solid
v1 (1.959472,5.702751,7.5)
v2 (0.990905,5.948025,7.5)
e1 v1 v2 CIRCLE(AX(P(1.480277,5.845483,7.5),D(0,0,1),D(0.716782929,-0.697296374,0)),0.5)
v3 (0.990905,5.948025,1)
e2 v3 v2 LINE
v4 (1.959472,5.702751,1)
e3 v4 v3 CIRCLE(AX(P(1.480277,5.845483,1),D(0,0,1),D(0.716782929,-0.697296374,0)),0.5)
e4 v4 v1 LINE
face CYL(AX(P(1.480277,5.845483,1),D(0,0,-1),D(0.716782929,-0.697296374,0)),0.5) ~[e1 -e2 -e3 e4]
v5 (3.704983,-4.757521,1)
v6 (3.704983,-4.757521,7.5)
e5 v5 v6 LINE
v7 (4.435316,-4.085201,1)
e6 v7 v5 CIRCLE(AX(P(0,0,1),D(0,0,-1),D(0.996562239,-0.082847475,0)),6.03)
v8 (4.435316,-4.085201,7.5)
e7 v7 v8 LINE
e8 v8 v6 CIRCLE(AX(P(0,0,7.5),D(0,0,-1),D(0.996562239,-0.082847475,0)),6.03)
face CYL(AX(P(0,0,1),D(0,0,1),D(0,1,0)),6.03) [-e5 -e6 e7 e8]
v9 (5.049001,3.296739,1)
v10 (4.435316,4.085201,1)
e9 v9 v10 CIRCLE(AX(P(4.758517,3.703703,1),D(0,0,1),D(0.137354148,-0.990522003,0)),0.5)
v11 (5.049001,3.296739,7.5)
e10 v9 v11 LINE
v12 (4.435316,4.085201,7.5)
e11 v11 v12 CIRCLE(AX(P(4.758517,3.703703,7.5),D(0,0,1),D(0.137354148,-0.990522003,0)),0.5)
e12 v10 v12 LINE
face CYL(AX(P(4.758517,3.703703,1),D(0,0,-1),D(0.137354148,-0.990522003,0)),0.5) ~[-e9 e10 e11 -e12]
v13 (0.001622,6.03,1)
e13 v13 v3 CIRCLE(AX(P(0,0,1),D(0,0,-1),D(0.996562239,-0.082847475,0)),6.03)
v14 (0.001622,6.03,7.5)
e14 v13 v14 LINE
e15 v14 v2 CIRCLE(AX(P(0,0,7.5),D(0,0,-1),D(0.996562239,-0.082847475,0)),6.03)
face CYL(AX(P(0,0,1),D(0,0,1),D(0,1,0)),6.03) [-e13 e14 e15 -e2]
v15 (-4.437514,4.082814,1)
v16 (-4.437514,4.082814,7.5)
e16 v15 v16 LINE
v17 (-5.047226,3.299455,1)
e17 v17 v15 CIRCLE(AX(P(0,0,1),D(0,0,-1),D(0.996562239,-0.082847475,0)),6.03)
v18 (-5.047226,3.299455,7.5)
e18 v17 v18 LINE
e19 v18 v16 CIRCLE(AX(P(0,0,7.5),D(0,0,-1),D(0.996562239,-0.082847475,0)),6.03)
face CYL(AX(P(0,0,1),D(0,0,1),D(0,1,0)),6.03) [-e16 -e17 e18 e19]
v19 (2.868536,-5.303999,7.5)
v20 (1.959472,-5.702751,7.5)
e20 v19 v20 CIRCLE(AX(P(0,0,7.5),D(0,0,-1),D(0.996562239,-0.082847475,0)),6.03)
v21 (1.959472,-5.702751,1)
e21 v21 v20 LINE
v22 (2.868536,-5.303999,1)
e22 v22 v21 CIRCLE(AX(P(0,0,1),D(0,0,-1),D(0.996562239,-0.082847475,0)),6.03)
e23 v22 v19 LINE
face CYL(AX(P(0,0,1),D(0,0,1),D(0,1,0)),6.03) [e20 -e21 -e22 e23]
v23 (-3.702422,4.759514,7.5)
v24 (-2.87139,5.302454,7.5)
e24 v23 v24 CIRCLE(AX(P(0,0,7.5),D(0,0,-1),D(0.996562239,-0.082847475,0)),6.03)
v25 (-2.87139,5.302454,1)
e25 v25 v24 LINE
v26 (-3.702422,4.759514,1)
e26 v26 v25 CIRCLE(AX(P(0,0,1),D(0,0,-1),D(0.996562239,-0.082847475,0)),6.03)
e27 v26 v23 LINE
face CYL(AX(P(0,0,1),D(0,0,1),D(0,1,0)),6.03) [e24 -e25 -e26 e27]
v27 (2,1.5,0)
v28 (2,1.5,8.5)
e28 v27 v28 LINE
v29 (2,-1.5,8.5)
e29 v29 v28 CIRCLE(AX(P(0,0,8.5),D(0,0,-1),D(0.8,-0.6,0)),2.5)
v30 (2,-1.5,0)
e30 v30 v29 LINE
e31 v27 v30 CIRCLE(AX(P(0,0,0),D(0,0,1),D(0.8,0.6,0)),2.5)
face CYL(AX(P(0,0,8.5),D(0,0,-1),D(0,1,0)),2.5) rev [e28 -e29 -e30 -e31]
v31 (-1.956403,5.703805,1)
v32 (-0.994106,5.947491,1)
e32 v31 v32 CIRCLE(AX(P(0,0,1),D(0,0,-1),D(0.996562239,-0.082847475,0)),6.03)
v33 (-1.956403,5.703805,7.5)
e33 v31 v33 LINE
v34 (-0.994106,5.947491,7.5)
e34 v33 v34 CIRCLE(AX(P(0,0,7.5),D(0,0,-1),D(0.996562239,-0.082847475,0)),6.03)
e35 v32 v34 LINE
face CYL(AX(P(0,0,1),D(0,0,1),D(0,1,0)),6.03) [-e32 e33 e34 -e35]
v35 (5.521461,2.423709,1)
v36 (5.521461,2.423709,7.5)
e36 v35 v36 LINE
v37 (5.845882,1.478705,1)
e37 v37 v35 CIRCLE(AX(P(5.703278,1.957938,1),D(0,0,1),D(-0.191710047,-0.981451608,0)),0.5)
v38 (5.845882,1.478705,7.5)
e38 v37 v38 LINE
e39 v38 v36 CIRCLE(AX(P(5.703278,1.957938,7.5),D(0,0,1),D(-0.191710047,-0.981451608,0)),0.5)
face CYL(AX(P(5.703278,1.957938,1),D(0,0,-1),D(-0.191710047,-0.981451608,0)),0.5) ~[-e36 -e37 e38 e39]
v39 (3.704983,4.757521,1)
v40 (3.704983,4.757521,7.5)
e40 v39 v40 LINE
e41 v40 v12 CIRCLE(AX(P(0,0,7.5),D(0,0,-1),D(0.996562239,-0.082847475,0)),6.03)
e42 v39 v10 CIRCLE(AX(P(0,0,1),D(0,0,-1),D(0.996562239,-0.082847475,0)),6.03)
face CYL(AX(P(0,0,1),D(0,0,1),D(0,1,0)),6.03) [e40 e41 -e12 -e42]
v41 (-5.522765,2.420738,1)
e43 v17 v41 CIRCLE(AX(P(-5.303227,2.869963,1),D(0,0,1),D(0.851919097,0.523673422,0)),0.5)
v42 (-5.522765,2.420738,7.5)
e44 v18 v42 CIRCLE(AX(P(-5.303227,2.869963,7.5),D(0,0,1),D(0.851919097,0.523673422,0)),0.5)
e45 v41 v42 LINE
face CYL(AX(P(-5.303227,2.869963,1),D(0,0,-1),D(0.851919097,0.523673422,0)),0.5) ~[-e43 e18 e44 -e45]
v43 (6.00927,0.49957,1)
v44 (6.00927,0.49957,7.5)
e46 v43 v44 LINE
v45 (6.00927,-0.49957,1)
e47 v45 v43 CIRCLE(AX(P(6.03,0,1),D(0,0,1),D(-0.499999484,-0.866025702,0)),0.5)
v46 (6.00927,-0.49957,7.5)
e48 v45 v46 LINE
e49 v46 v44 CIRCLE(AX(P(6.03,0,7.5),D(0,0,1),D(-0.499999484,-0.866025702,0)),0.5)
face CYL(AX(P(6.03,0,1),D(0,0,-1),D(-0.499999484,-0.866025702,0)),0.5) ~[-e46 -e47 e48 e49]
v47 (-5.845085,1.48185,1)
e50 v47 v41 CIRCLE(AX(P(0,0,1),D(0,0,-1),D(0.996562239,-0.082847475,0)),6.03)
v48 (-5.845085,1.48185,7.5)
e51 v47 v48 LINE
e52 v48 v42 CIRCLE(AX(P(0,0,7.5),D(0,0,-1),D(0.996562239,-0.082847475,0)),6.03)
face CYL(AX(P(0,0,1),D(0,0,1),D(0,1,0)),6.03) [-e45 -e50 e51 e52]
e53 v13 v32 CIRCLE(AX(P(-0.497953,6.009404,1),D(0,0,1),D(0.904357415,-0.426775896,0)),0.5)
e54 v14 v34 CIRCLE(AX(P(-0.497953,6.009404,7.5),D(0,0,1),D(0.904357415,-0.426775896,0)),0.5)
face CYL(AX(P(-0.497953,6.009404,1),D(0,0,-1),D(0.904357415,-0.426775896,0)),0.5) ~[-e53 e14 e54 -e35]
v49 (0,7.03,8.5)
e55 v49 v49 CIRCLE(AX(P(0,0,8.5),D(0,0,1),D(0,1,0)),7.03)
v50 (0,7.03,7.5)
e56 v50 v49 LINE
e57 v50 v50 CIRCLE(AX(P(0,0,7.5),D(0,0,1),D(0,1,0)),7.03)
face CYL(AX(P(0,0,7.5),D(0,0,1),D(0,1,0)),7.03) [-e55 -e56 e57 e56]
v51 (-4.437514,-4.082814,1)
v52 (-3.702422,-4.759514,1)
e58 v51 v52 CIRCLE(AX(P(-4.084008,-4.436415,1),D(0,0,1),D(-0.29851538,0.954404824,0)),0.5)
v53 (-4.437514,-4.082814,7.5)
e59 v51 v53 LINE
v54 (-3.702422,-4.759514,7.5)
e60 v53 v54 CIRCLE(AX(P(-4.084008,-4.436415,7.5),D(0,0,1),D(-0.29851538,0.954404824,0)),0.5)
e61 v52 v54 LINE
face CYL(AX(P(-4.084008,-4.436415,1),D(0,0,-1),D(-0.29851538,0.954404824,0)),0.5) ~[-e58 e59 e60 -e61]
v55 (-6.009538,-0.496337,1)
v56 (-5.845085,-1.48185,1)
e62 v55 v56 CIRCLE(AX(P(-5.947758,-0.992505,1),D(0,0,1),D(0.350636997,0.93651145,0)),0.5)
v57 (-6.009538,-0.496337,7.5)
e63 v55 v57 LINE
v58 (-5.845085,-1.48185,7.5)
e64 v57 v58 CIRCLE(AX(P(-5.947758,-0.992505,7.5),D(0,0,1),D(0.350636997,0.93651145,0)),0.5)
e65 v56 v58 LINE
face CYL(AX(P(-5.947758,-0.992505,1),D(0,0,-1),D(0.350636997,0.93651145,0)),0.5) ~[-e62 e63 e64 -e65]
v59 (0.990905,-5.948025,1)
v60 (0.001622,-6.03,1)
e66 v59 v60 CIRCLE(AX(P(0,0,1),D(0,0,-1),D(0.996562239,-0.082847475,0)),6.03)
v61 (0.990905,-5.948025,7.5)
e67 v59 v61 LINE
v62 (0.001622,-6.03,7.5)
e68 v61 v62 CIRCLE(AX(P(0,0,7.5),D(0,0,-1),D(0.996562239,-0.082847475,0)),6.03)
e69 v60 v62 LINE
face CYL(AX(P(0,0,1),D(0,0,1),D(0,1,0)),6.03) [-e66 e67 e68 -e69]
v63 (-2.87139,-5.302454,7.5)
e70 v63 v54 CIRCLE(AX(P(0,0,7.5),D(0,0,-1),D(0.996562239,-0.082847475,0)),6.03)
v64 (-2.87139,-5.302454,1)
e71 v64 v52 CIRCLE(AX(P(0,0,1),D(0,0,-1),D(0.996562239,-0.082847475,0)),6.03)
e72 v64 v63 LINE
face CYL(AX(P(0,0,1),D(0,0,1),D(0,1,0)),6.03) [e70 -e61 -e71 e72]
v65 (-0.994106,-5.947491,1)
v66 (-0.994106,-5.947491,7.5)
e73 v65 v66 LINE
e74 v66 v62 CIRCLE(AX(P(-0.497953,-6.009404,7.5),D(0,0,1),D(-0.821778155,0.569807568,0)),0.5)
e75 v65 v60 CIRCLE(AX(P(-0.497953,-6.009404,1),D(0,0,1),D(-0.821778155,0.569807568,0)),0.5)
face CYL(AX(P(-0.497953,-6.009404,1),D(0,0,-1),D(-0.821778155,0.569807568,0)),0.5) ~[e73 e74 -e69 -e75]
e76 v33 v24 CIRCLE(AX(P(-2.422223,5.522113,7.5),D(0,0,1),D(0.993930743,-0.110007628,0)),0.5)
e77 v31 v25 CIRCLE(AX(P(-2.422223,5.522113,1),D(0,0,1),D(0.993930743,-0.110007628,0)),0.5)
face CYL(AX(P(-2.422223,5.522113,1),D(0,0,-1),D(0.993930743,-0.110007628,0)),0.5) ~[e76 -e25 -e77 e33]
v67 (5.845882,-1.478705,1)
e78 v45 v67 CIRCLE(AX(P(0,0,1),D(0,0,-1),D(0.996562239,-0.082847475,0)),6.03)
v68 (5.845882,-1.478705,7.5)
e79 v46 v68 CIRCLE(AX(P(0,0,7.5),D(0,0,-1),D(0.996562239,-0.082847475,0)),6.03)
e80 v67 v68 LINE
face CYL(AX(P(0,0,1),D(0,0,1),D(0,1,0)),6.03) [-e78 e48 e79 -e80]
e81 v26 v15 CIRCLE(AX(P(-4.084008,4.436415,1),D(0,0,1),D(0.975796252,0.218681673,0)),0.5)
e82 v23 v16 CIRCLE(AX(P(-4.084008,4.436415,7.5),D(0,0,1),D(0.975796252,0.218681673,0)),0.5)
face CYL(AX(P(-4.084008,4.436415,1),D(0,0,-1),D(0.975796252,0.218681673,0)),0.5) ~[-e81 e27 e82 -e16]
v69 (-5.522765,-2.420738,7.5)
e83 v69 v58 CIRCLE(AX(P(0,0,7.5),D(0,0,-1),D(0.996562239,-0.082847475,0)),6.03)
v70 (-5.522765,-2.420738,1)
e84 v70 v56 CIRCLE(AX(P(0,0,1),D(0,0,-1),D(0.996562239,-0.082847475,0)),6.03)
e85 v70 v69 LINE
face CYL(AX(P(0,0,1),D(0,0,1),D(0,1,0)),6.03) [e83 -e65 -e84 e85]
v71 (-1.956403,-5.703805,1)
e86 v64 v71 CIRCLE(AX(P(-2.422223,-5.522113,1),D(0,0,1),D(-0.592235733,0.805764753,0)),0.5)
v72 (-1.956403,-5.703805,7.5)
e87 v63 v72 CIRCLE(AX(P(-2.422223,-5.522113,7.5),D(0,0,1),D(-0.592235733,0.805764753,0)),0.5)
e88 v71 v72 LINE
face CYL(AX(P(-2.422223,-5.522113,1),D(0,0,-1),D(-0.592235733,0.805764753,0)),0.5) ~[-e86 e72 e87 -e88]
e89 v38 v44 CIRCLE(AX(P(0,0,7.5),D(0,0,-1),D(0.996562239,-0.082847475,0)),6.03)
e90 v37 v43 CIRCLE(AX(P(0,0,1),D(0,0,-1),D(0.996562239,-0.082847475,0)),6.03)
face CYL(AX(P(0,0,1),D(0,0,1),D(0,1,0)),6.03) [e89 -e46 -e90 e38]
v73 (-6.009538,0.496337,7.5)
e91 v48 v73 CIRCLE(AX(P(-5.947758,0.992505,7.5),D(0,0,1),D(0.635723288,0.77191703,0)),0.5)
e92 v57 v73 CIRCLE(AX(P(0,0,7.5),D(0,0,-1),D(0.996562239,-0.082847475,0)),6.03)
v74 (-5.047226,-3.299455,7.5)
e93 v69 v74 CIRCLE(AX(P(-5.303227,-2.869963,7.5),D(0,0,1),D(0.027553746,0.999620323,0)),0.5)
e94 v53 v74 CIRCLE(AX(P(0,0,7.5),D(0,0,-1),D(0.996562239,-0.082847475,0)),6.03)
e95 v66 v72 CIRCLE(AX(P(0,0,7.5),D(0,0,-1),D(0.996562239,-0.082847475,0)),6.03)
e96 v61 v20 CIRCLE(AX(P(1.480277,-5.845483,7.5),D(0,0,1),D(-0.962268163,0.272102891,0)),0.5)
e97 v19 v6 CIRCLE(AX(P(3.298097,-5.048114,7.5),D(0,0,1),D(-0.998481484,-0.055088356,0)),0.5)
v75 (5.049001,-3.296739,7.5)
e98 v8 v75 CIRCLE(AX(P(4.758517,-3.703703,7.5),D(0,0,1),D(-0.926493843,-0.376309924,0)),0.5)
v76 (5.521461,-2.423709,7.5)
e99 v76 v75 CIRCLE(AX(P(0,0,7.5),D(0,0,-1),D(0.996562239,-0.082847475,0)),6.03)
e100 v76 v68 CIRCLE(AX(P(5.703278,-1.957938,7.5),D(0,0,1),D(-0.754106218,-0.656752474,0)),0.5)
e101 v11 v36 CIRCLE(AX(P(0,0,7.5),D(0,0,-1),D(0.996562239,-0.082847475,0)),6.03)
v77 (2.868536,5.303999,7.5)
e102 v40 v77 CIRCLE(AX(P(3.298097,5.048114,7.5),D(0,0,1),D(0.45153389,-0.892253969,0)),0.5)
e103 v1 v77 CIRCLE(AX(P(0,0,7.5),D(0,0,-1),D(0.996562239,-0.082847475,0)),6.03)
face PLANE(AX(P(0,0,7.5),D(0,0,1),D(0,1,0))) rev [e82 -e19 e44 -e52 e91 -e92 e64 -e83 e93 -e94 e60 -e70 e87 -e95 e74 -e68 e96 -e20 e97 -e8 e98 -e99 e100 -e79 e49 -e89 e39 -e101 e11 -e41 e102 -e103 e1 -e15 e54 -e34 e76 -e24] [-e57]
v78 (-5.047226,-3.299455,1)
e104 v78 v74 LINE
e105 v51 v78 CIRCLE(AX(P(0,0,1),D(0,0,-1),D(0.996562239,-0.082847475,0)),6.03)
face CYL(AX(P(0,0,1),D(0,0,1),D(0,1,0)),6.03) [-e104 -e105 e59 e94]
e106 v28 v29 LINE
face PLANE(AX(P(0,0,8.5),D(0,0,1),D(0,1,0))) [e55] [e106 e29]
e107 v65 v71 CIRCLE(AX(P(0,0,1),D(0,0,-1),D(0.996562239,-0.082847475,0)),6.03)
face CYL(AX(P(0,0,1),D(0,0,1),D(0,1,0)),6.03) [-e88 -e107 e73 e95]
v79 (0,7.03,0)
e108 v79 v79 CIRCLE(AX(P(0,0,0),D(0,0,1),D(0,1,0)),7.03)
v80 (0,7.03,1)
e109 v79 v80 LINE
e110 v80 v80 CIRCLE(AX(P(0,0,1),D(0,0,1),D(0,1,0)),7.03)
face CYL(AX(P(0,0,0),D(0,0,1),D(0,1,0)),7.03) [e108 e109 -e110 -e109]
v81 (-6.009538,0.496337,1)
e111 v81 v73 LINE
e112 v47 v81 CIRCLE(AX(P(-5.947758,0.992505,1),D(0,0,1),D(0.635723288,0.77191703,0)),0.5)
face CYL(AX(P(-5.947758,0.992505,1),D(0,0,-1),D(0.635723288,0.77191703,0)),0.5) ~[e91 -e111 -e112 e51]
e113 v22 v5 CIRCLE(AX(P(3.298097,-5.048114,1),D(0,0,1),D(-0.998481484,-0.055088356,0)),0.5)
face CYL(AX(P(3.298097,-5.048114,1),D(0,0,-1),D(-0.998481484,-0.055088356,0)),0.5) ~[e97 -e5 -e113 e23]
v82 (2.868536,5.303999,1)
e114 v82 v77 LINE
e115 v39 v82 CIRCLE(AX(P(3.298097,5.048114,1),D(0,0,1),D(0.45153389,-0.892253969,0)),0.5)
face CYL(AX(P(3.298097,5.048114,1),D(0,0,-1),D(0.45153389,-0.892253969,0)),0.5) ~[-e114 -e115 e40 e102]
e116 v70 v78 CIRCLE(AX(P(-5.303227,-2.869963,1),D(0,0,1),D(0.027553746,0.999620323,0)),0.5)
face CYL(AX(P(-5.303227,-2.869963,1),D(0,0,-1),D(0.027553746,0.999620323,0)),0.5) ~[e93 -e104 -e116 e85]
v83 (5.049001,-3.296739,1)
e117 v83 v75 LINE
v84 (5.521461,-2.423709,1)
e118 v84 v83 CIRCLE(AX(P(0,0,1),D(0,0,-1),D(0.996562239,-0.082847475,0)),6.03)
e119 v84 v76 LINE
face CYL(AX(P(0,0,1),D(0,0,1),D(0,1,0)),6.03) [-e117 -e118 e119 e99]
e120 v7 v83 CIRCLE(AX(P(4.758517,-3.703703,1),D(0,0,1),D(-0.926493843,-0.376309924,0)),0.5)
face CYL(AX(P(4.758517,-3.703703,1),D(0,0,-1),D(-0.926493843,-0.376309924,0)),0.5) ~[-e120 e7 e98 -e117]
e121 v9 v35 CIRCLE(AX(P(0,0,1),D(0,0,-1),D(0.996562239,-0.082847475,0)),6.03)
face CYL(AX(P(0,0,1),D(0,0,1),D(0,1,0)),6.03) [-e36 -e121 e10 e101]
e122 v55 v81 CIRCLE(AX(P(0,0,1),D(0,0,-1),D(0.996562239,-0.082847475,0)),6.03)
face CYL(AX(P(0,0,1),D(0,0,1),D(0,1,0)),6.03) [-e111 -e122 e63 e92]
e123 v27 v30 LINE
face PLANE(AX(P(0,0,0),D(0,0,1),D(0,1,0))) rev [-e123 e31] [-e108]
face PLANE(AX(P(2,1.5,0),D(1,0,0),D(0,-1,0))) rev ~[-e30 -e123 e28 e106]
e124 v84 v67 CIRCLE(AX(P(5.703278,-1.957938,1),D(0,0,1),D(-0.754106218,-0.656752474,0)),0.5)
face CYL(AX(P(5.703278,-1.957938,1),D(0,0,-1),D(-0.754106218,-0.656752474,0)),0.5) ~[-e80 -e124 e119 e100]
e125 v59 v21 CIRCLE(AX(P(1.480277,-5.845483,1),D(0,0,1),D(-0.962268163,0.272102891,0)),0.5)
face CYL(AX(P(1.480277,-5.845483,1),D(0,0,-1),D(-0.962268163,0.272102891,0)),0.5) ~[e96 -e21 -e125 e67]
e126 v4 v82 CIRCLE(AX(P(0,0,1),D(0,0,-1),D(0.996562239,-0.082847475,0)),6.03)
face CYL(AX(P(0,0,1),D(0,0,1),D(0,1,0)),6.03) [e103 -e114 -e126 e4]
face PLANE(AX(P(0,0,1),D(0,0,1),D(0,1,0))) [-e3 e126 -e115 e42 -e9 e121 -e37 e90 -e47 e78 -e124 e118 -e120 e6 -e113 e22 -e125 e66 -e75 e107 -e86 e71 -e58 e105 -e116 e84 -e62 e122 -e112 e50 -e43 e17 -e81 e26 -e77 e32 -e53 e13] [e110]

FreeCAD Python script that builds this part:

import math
import FreeCAD as App
import Part
import Sketcher


def add_polygon(sketch, points):
    """Adds a closed chain of lines whose ends are joined by coincident constraints."""
    first, n = sketch.GeometryCount, len(points)
    for a, b in zip(points, points[1:] + points[:1]):
        sketch.addGeometry(Part.LineSegment(App.Vector(*a, 0), App.Vector(*b, 0)), False)
    for i in range(n):
        sketch.addConstraint(Sketcher.Constraint("Coincident", first + i, 2, first + (i + 1) % n, 1))

doc = App.newDocument("Part")
params = doc.addObject("Spreadsheet::Sheet", "Params")
for row, (alias, value) in enumerate([
    ("sketch1_width", "1 mm"),
    ("sketch1_height", "6.5 mm"),
    ("sketch1_width2", "4.53 mm"),
    ("revolution_angle", "360 deg"),
    ("sketch2_radius", "0.5 mm"),
    ("pad1_length", "6.5 mm"),
    ("sketch3_radius", "2.5 mm"),
    ("sketch3_height", "3 mm"),
    ("pad2_length", "8.5 mm"),
], start=1):
    params.set(f"A{row}", alias)
    params.set(f"B{row}", "=" + value)
    params.setAlias(f"B{row}", alias)

body = doc.addObject("PartDesign::Body", "Body")

sketch1 = body.newObject("Sketcher::SketchObject", "Sketch")
sketch1.AttachmentSupport = (doc.getObject("YZ_Plane"), [""])
sketch1.MapMode = "FlatFace"
add_polygon(sketch1, [(2.5, 0), (7.03, 0), (7.03, 1), (6.03, 1), (6.03, 7.5), (7.03, 7.5), (7.03, 8.5), (2.5, 8.5)])
sketch1.addConstraint(Sketcher.Constraint("Horizontal", 0))
sketch1.addConstraint(Sketcher.Constraint("Vertical", 1))
sketch1.addConstraint(Sketcher.Constraint("Horizontal", 2))
sketch1.addConstraint(Sketcher.Constraint("Vertical", 3))
sketch1.addConstraint(Sketcher.Constraint("Horizontal", 4))
sketch1.addConstraint(Sketcher.Constraint("Vertical", 5))
sketch1.addConstraint(Sketcher.Constraint("Horizontal", 6))
sketch1.addConstraint(Sketcher.Constraint("Vertical", 7))
sketch1.addConstraint(Sketcher.Constraint("PointOnObject", 0, 2, -1))
sketch1.addConstraint(Sketcher.Constraint("Vertical", 1, 2, 4, 2))
sketch1.addConstraint(Sketcher.Constraint("Equal", 4, 1))
sketch1.addConstraint(Sketcher.Constraint("Equal", 1, 5))
sketch1.addConstraint(Sketcher.Constraint("DistanceX", 2, 2, 2, 1, 1.0))
sketch1.addConstraint(Sketcher.Constraint("DistanceY", 3, 1, 3, 2, 6.5))
sketch1.addConstraint(Sketcher.Constraint("DistanceX", 0, 1, 0, 2, 4.53))
sketch1.addConstraint(Sketcher.Constraint("DistanceX", -1, 1, 6, 2, 2.5))
sketch1.setExpression("Constraints[20]", "Params.sketch1_width")
sketch1.setExpression("Constraints[21]", "Params.sketch1_height")
sketch1.setExpression("Constraints[22]", "Params.sketch1_width2")
revolution = body.newObject("PartDesign::Revolution", "Revolution")
revolution.Profile = sketch1
revolution.ReferenceAxis = (sketch1, ["V_Axis"])
revolution.setExpression("Angle", "Params.revolution_angle")

sketch2 = body.newObject("Sketcher::SketchObject", "Sketch001")
sketch2.AttachmentSupport = (doc.getObject("XY_Plane"), [""])
sketch2.MapMode = "FlatFace"
sketch2.AttachmentOffset = App.Placement(App.Vector(0, 0, 1), App.Rotation())
sketch2.addGeometry(Part.ArcOfCircle(Part.Circle(App.Vector(6.03, 0, 0), App.Vector(0, 0, 1), 0.5), math.radians(-119.999966), math.radians(119.999966)), False)
sketch2.addGeometry(Part.LineSegment(App.Vector(5.78, 0.433013, 0), App.Vector(5.78, -0.433013, 0)), False)
sketch2.addConstraint(Sketcher.Constraint("Coincident", 0, 1, 1, 2))
sketch2.addConstraint(Sketcher.Constraint("Coincident", 1, 1, 0, 2))
sketch2.addConstraint(Sketcher.Constraint("Vertical", 1))
sketch2.addConstraint(Sketcher.Constraint("PointOnObject", 0, 3, -1))
sketch2.addConstraint(Sketcher.Constraint("Radius", 0, 0.5))
sketch2.addConstraint(Sketcher.Constraint("DistanceX", -1, 1, 0, 3, 6.03))
sketch2.addConstraint(Sketcher.Constraint("DistanceX", -1, 1, 0, 1, 5.78))
sketch2.setExpression("Constraints[4]", "Params.sketch2_radius")
pad1 = body.newObject("PartDesign::Pad", "Pad")
pad1.Profile = sketch2
pad1.setExpression("Length", "Params.pad1_length")
doc.recompute()

polarpattern = body.newObject("PartDesign::PolarPattern", "PolarPattern")
polarpattern.Originals = [pad1]
polarpattern.Axis = (doc.getObject("Z_Axis"), [""])
polarpattern.Angle = 360
polarpattern.Occurrences = 19
body.Tip = polarpattern

sketch3 = body.newObject("Sketcher::SketchObject", "Sketch002")
sketch3.AttachmentSupport = (doc.getObject("XY_Plane"), [""])
sketch3.MapMode = "FlatFace"
sketch3.addGeometry(Part.ArcOfCircle(Part.Circle(App.Vector(0, 0, 0), App.Vector(0, 0, 1), 2.5), math.radians(-36.869898), math.radians(36.869898)), False)
sketch3.addGeometry(Part.LineSegment(App.Vector(2, 1.5, 0), App.Vector(2, -1.5, 0)), False)
sketch3.addConstraint(Sketcher.Constraint("Coincident", 0, 1, 1, 2))
sketch3.addConstraint(Sketcher.Constraint("Coincident", 1, 1, 0, 2))
sketch3.addConstraint(Sketcher.Constraint("Vertical", 1))
sketch3.addConstraint(Sketcher.Constraint("Coincident", 0, 3, -1, 1))
sketch3.addConstraint(Sketcher.Constraint("Radius", 0, 2.5))
sketch3.addConstraint(Sketcher.Constraint("DistanceY", 1, 2, 1, 1, 3.0))
sketch3.setExpression("Constraints[4]", "Params.sketch3_radius")
sketch3.setExpression("Constraints[5]", "Params.sketch3_height")
pad2 = body.newObject("PartDesign::Pad", "Pad001")
pad2.Profile = sketch3
pad2.setExpression("Length", "Params.pad2_length")

doc.recompute()
